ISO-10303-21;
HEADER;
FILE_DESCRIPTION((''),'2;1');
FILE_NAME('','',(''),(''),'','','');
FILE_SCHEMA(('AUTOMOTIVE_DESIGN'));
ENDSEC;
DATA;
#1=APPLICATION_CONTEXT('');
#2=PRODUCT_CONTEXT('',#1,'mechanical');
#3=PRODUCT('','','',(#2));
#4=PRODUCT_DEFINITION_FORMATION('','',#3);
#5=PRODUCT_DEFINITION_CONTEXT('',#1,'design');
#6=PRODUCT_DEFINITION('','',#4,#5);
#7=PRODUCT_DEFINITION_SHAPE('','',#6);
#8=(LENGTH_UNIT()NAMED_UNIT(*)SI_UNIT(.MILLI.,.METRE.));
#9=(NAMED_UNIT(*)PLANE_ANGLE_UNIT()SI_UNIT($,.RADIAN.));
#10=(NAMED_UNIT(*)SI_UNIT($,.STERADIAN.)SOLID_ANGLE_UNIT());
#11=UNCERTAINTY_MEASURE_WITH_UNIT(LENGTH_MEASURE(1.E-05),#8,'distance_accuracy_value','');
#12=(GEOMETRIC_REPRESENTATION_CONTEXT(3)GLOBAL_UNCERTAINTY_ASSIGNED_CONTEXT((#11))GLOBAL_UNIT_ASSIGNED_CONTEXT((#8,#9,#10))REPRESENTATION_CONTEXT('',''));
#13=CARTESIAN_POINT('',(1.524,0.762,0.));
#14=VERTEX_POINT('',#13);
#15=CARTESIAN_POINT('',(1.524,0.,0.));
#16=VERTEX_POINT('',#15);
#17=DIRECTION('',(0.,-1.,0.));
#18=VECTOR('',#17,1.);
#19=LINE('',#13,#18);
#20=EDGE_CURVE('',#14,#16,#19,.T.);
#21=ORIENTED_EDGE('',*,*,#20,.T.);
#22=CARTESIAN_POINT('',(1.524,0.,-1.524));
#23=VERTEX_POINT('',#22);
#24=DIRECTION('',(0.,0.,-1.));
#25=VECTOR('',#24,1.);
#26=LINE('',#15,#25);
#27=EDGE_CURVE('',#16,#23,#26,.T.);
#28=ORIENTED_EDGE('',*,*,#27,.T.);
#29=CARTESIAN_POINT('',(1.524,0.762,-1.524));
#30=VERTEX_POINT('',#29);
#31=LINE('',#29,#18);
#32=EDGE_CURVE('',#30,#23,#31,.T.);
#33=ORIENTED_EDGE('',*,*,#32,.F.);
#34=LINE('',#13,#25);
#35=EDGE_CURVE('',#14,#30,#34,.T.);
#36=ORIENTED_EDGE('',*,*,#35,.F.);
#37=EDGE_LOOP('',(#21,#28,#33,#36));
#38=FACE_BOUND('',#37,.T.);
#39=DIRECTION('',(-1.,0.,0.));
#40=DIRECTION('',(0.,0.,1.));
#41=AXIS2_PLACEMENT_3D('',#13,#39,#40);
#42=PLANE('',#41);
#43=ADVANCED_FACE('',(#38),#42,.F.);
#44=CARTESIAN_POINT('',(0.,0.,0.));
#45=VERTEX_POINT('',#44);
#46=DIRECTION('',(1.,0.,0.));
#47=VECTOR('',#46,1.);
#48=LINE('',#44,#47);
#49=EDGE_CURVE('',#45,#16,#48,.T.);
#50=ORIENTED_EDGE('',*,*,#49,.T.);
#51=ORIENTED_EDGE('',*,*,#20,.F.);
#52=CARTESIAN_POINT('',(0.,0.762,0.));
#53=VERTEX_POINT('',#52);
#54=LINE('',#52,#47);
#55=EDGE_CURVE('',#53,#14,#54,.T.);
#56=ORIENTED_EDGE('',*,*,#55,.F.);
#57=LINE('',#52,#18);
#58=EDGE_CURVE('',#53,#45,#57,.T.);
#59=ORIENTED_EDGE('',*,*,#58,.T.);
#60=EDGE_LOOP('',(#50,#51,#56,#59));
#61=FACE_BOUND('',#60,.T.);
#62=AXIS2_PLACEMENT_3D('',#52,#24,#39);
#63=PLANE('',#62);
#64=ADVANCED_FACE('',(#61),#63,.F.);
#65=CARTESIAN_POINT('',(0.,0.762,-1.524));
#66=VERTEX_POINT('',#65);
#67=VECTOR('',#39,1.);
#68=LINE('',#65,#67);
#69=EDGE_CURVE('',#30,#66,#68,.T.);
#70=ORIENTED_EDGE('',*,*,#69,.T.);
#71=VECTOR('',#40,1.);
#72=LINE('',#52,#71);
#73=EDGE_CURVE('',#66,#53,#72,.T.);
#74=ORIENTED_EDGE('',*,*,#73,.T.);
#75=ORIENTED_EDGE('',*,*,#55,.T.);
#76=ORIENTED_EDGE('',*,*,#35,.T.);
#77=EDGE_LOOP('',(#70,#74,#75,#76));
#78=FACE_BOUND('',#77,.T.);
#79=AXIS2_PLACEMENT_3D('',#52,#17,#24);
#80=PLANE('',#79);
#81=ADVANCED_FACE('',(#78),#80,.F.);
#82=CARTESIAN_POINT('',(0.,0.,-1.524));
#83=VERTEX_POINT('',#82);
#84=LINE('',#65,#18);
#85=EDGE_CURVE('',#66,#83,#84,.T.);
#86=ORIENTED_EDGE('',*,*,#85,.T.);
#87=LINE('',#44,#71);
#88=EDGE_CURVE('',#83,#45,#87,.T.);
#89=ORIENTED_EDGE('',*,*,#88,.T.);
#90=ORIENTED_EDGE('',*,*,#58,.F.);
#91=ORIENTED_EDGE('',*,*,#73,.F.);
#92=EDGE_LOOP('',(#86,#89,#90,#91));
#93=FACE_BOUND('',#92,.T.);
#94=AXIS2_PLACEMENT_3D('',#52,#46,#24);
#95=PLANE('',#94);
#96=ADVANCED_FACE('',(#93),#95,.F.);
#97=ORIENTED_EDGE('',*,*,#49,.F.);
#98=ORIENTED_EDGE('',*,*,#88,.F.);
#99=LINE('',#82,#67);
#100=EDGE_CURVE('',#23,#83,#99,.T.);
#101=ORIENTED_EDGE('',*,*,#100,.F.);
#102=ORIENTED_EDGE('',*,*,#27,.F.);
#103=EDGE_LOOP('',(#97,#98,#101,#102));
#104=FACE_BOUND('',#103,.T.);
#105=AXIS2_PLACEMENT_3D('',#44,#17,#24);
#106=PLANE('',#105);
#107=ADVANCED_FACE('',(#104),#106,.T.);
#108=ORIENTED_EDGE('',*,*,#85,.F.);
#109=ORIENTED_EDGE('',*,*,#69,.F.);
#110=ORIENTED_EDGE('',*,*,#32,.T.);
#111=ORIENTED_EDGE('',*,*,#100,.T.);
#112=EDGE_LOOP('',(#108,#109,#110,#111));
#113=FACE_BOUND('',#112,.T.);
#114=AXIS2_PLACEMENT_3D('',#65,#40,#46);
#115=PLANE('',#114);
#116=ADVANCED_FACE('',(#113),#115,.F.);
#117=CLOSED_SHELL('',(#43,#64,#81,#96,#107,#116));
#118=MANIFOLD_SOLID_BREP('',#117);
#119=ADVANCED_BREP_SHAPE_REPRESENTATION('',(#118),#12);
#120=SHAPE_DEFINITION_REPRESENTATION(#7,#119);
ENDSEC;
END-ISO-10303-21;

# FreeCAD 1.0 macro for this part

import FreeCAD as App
import Part
import Sketcher
Q = App.Units.Quantity

doc = App.newDocument("Part")
params = doc.addObject("Spreadsheet::Sheet", "Params")
for row, (alias, value) in enumerate([
    ("sketch1_width", "0.06 in"),
    ("pad1_length", "0.03 in"),
], start=1):
    params.set(f"A{row}", alias)
    params.set(f"B{row}", "=" + value)
    params.setAlias(f"B{row}", alias)

body = doc.addObject("PartDesign::Body", "Body")

# Sketch on XZ plane
sketch1 = body.newObject("Sketcher::SketchObject", "Sketch")
sketch1.AttachmentSupport = (doc.getObject("XZ_Plane"), [""])
sketch1.MapMode = "FlatFace"
sketch1.addGeometry(Part.LineSegment(App.Vector(0, -1.5, 0), App.Vector(0, 0, 0)), False)
sketch1.addGeometry(Part.LineSegment(App.Vector(0, 0, 0), App.Vector(1.5, 0, 0)), False)
sketch1.addGeometry(Part.LineSegment(App.Vector(1.5, 0, 0), App.Vector(1.5, -1.5, 0)), False)
sketch1.addGeometry(Part.LineSegment(App.Vector(1.5, -1.5, 0), App.Vector(0, -1.5, 0)), False)
sketch1.addConstraint(Sketcher.Constraint("Coincident", 0, 2, 1, 1))
sketch1.addConstraint(Sketcher.Constraint("Coincident", 1, 2, 2, 1))
sketch1.addConstraint(Sketcher.Constraint("Coincident", 2, 2, 3, 1))
sketch1.addConstraint(Sketcher.Constraint("Coincident", 3, 2, 0, 1))
sketch1.addConstraint(Sketcher.Constraint("Vertical", 0))
sketch1.addConstraint(Sketcher.Constraint("Horizontal", 1))
sketch1.addConstraint(Sketcher.Constraint("Vertical", 2))
sketch1.addConstraint(Sketcher.Constraint("Horizontal", 3))
sketch1.addConstraint(Sketcher.Constraint("Coincident", 0, 2, -1, 1))
sketch1.addConstraint(Sketcher.Constraint("Equal", 3, 0))
sketch1.addConstraint(Sketcher.Constraint("DistanceX", 1, 1, 1, 2, Q("0.06 in")))
sketch1.setExpression("Constraints[10]", "Params.sketch1_width")
pad1 = body.newObject("PartDesign::Pad", "Pad")
pad1.Profile = sketch1
pad1.setExpression("Length", "Params.pad1_length")
pad1.Reversed = True

doc.recompute()
